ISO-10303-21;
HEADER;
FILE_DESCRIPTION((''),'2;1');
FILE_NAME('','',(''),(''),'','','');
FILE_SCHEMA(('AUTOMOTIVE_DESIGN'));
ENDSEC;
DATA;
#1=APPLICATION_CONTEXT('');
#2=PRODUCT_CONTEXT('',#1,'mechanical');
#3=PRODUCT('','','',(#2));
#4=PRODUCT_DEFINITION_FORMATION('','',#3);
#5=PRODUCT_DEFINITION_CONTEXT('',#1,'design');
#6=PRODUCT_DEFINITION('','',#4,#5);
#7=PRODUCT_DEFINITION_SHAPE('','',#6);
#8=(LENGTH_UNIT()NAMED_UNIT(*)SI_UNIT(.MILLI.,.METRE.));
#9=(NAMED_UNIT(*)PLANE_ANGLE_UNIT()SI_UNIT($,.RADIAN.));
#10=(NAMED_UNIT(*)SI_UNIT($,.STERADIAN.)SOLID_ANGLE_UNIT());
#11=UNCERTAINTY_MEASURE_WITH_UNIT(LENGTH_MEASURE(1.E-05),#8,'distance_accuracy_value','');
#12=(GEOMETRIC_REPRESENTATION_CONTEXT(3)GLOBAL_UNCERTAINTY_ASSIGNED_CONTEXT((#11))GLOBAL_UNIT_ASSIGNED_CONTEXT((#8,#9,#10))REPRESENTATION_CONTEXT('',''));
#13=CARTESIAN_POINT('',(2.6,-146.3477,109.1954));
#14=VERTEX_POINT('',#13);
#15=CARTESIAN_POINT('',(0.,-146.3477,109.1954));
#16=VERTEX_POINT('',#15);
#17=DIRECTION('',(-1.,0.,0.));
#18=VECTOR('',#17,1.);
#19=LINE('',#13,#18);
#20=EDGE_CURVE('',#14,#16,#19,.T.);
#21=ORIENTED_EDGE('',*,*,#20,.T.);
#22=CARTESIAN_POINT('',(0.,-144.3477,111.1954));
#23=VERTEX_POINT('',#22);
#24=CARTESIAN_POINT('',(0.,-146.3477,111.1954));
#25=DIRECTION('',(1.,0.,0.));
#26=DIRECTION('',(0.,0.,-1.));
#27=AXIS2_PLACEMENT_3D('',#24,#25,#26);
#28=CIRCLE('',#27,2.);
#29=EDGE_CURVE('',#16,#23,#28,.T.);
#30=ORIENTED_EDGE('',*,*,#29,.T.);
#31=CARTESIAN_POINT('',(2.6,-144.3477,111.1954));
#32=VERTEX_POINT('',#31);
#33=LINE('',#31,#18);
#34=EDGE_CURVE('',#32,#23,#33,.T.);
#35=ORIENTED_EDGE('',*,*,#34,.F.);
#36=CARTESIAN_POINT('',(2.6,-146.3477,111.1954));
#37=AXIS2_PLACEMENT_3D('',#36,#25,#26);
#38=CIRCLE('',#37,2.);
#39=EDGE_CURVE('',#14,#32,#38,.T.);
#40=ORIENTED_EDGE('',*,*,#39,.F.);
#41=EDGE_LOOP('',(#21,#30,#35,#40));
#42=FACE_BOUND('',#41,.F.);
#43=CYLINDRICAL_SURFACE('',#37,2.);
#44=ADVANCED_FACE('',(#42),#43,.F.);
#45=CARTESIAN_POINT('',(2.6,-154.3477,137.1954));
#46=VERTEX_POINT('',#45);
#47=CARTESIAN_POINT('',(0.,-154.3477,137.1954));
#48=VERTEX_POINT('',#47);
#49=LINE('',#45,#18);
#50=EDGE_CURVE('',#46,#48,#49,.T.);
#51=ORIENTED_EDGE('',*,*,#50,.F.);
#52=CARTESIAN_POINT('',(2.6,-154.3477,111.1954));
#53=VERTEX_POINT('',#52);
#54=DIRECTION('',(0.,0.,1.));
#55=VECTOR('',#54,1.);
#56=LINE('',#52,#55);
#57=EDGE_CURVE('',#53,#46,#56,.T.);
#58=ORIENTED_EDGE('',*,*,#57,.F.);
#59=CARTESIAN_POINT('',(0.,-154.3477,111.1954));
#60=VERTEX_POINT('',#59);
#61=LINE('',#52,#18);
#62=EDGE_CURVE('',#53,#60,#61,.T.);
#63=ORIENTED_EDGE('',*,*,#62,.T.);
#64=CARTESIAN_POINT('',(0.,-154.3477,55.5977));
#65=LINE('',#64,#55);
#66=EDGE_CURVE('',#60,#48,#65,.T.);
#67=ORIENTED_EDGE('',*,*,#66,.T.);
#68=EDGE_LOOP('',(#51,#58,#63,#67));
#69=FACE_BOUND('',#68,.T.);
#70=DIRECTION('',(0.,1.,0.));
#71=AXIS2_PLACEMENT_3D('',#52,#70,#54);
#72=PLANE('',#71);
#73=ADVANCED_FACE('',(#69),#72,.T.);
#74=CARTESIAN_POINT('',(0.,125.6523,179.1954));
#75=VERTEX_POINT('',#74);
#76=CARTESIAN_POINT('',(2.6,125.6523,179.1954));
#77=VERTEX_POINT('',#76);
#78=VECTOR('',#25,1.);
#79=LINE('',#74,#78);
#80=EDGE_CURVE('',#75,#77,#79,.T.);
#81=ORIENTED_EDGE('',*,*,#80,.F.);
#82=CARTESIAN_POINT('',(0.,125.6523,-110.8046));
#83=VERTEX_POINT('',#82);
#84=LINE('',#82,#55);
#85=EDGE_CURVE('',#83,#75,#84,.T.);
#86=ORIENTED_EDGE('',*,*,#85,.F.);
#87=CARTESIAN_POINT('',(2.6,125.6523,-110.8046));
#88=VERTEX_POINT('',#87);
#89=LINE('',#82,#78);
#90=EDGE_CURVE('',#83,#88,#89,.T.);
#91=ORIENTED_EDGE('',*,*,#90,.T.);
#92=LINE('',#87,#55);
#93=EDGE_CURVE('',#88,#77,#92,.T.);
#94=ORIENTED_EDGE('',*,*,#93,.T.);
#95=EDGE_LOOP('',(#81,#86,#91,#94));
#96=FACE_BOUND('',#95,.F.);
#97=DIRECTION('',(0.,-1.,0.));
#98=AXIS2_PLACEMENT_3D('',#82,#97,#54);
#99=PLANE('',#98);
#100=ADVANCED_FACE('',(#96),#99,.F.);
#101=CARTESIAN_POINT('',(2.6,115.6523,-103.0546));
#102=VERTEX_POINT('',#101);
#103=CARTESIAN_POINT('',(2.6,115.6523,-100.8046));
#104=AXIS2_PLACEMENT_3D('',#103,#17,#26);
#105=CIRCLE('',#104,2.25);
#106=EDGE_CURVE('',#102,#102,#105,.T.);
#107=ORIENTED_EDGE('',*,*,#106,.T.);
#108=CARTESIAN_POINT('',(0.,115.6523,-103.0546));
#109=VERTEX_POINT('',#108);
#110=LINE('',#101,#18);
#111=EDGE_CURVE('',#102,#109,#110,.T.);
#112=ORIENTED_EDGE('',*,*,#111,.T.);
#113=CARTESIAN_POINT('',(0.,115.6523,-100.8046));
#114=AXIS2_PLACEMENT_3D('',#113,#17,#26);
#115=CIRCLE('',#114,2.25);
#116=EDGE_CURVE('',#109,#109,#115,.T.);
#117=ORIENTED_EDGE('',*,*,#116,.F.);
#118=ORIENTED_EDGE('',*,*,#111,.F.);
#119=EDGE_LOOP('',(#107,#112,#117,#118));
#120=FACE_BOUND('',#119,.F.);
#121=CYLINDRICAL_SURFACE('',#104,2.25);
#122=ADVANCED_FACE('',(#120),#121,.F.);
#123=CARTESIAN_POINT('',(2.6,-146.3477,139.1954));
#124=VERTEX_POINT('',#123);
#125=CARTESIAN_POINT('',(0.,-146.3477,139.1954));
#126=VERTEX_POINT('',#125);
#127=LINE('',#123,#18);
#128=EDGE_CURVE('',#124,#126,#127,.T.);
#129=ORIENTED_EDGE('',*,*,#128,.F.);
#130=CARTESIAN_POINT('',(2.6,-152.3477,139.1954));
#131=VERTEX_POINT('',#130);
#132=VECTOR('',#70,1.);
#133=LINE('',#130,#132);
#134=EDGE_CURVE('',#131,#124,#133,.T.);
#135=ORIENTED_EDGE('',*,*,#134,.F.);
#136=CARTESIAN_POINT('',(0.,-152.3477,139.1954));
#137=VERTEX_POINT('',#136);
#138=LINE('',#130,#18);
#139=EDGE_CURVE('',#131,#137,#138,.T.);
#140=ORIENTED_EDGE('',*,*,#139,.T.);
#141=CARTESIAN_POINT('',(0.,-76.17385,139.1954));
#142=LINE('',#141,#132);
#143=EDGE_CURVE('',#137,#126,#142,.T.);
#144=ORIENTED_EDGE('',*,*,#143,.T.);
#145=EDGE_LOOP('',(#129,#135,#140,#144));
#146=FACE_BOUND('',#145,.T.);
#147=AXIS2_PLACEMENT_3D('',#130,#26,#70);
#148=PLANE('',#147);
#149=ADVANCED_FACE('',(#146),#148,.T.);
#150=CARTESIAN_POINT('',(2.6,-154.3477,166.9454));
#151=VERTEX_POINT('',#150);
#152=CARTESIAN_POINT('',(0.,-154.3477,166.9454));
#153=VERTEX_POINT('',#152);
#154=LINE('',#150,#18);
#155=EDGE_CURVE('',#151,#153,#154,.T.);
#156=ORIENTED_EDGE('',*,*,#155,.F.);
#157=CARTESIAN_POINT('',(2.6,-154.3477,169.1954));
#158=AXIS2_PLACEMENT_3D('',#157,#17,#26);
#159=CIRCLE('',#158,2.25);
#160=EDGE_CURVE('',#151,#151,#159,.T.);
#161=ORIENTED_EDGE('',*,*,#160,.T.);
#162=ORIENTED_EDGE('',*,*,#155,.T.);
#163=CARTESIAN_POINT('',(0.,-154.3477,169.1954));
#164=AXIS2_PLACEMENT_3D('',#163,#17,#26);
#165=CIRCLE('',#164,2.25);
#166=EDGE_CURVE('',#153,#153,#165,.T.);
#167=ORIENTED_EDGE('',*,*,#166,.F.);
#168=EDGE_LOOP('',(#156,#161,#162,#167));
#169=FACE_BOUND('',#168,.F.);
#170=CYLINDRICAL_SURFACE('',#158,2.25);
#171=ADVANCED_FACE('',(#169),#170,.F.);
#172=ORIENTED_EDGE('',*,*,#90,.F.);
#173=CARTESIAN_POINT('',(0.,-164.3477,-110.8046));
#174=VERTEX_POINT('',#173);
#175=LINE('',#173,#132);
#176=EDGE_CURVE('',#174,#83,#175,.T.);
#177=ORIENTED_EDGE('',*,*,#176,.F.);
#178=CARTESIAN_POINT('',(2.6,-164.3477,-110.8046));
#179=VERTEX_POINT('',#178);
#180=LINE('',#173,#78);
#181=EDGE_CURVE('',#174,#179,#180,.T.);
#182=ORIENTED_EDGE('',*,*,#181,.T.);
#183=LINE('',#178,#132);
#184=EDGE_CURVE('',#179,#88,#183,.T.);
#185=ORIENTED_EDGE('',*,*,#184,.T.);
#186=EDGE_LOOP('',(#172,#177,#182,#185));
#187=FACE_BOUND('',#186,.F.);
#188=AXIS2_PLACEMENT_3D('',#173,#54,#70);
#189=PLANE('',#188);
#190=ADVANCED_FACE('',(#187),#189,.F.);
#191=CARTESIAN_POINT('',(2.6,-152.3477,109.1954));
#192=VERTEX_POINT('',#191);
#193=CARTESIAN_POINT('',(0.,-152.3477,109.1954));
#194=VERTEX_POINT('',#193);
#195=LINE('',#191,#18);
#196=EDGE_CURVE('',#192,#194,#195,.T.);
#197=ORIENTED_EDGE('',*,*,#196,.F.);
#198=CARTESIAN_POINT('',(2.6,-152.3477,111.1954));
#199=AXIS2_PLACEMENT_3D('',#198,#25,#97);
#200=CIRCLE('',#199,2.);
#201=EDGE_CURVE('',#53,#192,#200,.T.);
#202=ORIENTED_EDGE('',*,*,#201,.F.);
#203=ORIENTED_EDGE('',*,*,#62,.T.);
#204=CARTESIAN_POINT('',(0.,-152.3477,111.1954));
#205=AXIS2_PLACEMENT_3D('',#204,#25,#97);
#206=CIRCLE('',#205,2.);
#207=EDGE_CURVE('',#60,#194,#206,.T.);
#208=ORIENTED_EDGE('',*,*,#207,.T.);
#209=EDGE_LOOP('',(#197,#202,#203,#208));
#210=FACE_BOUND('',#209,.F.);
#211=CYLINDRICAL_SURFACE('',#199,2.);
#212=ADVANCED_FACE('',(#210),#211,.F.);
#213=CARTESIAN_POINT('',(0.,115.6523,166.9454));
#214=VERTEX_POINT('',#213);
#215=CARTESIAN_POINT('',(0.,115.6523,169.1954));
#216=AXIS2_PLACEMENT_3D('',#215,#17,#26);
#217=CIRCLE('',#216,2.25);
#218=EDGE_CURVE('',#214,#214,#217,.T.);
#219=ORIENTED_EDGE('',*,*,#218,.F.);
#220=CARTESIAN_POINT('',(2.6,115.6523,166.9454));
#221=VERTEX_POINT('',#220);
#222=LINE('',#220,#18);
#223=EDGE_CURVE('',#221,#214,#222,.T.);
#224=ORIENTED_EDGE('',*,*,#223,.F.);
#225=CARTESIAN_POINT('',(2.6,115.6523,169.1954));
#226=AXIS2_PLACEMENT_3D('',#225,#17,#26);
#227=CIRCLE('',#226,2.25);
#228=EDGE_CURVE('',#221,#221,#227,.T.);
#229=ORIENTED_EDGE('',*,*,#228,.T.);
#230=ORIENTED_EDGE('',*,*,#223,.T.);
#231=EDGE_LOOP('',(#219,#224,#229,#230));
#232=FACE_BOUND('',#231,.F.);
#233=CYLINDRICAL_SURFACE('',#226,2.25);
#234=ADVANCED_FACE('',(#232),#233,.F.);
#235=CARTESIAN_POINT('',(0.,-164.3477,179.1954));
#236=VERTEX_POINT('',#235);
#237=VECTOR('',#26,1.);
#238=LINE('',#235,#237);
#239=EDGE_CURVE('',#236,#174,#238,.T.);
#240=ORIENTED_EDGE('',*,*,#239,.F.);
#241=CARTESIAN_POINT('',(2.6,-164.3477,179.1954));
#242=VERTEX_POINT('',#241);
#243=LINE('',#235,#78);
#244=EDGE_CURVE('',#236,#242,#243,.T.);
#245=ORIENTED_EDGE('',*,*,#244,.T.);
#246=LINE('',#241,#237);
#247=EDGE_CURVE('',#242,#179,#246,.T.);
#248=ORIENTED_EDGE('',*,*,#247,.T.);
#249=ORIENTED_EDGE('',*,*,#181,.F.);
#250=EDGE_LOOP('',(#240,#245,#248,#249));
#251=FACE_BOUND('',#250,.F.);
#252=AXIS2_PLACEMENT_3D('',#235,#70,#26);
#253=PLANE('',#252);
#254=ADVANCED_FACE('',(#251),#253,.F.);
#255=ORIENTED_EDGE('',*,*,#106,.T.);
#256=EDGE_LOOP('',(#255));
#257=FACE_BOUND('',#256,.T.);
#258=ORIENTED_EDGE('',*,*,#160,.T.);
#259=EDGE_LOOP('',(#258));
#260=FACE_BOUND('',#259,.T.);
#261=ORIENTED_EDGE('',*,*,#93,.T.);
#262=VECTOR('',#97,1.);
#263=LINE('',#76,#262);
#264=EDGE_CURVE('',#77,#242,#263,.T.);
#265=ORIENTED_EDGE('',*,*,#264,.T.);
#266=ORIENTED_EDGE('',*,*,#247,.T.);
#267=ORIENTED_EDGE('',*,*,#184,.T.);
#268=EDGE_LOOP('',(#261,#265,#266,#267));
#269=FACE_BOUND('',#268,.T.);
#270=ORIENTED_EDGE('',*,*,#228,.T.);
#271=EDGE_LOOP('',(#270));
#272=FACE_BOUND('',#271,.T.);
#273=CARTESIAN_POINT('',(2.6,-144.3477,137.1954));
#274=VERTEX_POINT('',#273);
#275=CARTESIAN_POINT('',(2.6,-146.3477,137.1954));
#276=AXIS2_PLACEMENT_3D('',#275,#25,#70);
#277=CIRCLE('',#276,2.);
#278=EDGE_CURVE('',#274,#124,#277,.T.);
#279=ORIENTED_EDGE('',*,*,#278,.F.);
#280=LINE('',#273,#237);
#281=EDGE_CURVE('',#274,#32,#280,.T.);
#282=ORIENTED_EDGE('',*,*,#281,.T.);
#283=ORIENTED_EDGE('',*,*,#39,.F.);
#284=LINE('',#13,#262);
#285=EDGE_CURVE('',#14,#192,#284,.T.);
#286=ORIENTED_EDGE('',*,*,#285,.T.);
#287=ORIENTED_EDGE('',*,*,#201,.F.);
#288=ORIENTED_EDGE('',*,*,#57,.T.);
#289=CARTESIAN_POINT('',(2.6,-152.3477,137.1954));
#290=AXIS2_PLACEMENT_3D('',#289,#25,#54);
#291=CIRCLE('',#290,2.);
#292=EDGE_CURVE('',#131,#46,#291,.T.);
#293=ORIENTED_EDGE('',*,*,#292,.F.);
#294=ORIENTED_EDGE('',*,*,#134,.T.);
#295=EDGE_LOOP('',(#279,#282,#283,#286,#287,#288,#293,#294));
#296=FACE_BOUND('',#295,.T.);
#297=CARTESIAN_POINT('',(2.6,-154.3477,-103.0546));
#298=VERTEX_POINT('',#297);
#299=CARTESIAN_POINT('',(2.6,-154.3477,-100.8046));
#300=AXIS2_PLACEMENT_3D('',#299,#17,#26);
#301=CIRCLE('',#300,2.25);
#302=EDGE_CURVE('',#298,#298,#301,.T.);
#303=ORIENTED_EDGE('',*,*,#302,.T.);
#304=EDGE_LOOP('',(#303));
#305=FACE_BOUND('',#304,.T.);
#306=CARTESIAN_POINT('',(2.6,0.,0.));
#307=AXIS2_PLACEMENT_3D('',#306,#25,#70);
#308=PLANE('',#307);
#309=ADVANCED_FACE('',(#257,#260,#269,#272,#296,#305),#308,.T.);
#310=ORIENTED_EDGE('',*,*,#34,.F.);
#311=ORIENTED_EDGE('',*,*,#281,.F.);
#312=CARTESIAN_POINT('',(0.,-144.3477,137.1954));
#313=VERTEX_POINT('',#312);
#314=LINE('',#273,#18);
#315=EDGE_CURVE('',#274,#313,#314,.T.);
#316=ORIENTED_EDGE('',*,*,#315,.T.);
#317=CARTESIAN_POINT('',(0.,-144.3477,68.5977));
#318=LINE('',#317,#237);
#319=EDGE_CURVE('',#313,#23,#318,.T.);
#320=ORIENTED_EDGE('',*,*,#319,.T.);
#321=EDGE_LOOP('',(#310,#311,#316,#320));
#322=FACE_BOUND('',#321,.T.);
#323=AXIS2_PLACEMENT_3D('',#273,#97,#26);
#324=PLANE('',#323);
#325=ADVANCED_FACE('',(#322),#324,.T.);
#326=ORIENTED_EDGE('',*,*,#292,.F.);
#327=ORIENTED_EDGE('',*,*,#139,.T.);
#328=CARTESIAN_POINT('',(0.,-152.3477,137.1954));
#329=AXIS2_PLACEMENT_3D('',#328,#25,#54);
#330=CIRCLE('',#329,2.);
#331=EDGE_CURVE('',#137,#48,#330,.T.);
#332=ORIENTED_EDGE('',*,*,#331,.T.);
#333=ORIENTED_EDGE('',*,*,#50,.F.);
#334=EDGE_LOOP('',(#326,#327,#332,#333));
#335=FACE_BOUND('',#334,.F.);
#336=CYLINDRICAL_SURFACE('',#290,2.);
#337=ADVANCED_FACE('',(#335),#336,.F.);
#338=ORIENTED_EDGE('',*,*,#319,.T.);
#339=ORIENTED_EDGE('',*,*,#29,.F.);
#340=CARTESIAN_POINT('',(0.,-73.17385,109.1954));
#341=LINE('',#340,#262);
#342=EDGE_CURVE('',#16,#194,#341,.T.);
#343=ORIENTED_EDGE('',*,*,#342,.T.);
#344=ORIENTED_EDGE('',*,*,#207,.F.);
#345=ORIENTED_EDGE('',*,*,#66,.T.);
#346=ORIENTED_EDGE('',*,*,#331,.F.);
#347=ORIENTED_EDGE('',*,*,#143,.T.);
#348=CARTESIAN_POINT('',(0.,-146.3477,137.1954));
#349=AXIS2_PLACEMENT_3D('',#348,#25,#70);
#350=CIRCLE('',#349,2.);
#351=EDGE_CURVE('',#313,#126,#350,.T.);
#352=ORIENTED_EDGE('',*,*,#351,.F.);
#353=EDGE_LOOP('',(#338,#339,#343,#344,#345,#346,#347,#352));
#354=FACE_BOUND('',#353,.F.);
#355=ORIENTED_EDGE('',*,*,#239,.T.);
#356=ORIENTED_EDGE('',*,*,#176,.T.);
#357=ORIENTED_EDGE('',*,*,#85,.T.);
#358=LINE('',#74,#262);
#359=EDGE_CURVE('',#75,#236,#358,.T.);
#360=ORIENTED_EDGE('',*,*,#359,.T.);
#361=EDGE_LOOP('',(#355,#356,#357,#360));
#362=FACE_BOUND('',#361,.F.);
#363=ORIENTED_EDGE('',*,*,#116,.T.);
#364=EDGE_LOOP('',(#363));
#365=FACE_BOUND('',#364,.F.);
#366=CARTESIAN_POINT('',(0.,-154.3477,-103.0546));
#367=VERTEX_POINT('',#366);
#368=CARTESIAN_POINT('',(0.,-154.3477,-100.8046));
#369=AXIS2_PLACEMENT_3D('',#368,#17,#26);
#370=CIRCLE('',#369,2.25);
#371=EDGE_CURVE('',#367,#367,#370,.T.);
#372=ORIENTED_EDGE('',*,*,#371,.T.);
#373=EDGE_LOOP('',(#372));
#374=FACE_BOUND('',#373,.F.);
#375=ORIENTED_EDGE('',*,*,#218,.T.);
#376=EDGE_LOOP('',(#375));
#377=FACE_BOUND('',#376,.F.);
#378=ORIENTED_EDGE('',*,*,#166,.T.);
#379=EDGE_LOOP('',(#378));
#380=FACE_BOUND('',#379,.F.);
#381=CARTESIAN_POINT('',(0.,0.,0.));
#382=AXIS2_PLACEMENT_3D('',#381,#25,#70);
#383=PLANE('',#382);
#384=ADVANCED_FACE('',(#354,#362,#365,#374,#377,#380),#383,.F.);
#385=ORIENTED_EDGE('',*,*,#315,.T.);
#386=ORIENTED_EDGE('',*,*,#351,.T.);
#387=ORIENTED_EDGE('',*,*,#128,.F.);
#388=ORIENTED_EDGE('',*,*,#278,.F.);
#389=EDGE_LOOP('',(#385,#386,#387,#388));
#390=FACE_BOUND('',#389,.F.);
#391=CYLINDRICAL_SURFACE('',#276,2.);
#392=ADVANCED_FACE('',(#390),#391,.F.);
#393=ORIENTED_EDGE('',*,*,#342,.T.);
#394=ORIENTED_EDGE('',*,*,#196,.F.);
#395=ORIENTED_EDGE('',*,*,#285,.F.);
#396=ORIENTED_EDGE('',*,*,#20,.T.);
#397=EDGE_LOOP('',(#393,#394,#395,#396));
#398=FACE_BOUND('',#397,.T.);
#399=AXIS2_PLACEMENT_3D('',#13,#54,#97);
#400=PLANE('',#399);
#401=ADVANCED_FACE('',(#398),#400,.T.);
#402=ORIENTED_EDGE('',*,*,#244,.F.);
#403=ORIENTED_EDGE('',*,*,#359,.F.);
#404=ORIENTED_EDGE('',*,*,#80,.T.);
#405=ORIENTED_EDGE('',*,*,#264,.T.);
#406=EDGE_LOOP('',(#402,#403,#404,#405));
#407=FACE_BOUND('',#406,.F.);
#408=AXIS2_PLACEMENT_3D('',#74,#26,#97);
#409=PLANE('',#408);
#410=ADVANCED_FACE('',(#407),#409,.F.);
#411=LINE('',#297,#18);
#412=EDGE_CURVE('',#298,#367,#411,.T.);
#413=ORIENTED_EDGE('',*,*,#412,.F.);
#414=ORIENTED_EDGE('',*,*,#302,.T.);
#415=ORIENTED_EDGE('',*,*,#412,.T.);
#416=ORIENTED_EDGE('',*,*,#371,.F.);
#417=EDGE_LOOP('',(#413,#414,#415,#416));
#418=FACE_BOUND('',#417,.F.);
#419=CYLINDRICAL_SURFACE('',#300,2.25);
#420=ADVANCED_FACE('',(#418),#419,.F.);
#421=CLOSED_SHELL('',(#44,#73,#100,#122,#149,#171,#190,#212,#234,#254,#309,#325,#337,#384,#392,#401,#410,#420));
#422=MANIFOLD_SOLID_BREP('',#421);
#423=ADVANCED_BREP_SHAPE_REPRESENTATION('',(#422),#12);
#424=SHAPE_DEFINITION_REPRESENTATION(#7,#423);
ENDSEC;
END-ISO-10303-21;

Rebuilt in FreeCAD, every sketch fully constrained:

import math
import FreeCAD as App
import Part
import Sketcher
from FreeCAD import Vector

doc = App.newDocument("Part")
body = doc.addObject("PartDesign::Body", "Body")

sketch1 = body.newObject("Sketcher::SketchObject", "Sketch")
sketch1.AttachmentSupport = (doc.getObject("YZ_Plane"), [""])
sketch1.MapMode = "FlatFace"
sketch1.addGeometry([
    Part.LineSegment(Vector(125.6523, -110.8046, 0), Vector(125.6523, 179.1954, 0)),
    Part.LineSegment(Vector(125.6523, 179.1954, 0), Vector(-164.3477, 179.1954, 0)),
    Part.LineSegment(Vector(-164.3477, 179.1954, 0), Vector(-164.3477, -110.8046, 0)),
    Part.LineSegment(Vector(-164.3477, -110.8046, 0), Vector(125.6523, -110.8046, 0)),
], False)
sketch1.addConstraint([
    Sketcher.Constraint("Coincident", 0, 2, 1, 1),
    Sketcher.Constraint("Coincident", 1, 2, 2, 1),
    Sketcher.Constraint("Coincident", 2, 2, 3, 1),
    Sketcher.Constraint("Coincident", 3, 2, 0, 1),
    Sketcher.Constraint("Vertical", 0),
    Sketcher.Constraint("Horizontal", 1),
    Sketcher.Constraint("Vertical", 2),
    Sketcher.Constraint("Horizontal", 3),
    Sketcher.Constraint("Equal", 3, 0),
    Sketcher.Constraint("DistanceX", 1, 2, 1, 1, 290.0),
    Sketcher.Constraint("DistanceX", -1, 1, 0, 2, 125.6523),
    Sketcher.Constraint("DistanceY", -1, 1, 0, 2, 179.1954),
])
pad1 = body.newObject("PartDesign::Pad", "Pad")
pad1.Profile = sketch1
pad1.Length = 2.6

sketch2 = body.newObject("Sketcher::SketchObject", "Sketch001")
sketch2.AttachmentSupport = (doc.getObject("YZ_Plane"), [""])
sketch2.MapMode = "FlatFace"
sketch2.AttachmentOffset = App.Placement(Vector(0, 0, 2.6), App.Rotation())
sketch2.addGeometry([
    Part.Circle(Vector(115.6523, 169.1954, 0), Vector(0, 0, 1), 2.25),
    Part.Circle(Vector(115.6523, -100.8046, 0), Vector(0, 0, 1), 2.25),
    Part.Circle(Vector(-154.3477, 169.1954, 0), Vector(0, 0, 1), 2.25),
    Part.Circle(Vector(-154.3477, -100.8046, 0), Vector(0, 0, 1), 2.25),
], False)
sketch2.addConstraint([
    Sketcher.Constraint("Equal", 0, 1),
    Sketcher.Constraint("Equal", 1, 2),
    Sketcher.Constraint("Equal", 2, 3),
    Sketcher.Constraint("Horizontal", 0, 3, 2, 3),
    Sketcher.Constraint("Horizontal", 1, 3, 3, 3),
    Sketcher.Constraint("Vertical", 0, 3, 1, 3),
    Sketcher.Constraint("Vertical", 2, 3, 3, 3),
    Sketcher.Constraint("Diameter", 0, 4.5),
    Sketcher.Constraint("DistanceY", 1, 3, 0, 3, 270.0),
    Sketcher.Constraint("DistanceX", 2, 3, 0, 3, 270.0),
    Sketcher.Constraint("DistanceX", -1, 1, 0, 3, 115.6523),
    Sketcher.Constraint("DistanceY", -1, 1, 0, 3, 169.1954),
])
doc.recompute()
hole = body.newObject("PartDesign::Hole", "Hole")
hole.Profile = sketch2
hole.ThreadType = "None"
hole.Diameter = 4.5
hole.DepthType = "Dimension"
hole.Depth = 10
hole.DrillPoint = "Angled"
hole.DrillPointAngle = 118

sketch3 = body.newObject("Sketcher::SketchObject", "Sketch002")
sketch3.AttachmentSupport = (doc.getObject("YZ_Plane"), [""])
sketch3.MapMode = "FlatFace"
sketch3.AttachmentOffset = App.Placement(Vector(0, 0, 2.6), App.Rotation())
sketch3.addGeometry([
    Part.LineSegment(Vector(-154.3477, 137.1954, 0), Vector(-154.3477, 111.1954, 0)),
    Part.ArcOfCircle(Part.Circle(Vector(-152.3477, 111.1954, 0), Vector(0, 0, 1), 2), math.radians(180), math.radians(270)),
    Part.LineSegment(Vector(-152.3477, 109.1954, 0), Vector(-146.3477, 109.1954, 0)),
    Part.ArcOfCircle(Part.Circle(Vector(-146.3477, 111.1954, 0), Vector(0, 0, 1), 2), math.radians(-90), math.radians(0)),
    Part.LineSegment(Vector(-144.3477, 111.1954, 0), Vector(-144.3477, 137.1954, 0)),
    Part.ArcOfCircle(Part.Circle(Vector(-146.3477, 137.1954, 0), Vector(0, 0, 1), 2), math.radians(0), math.radians(90)),
    Part.LineSegment(Vector(-146.3477, 139.1954, 0), Vector(-152.3477, 139.1954, 0)),
    Part.ArcOfCircle(Part.Circle(Vector(-152.3477, 137.1954, 0), Vector(0, 0, 1), 2), math.radians(90), math.radians(180)),
], False)
sketch3.addConstraint([
    Sketcher.Constraint("Tangent", 0, 2, 1, 1),
    Sketcher.Constraint("Tangent", 1, 2, 2, 1),
    Sketcher.Constraint("Tangent", 2, 2, 3, 1),
    Sketcher.Constraint("Tangent", 3, 2, 4, 1),
    Sketcher.Constraint("Tangent", 4, 2, 5, 1),
    Sketcher.Constraint("Tangent", 5, 2, 6, 1),
    Sketcher.Constraint("Tangent", 6, 2, 7, 1),
    Sketcher.Constraint("Tangent", 7, 2, 0, 1),
    Sketcher.Constraint("Vertical", 0),
    Sketcher.Constraint("Horizontal", 2),
    Sketcher.Constraint("Vertical", 4),
    Sketcher.Constraint("Horizontal", 6),
    Sketcher.Constraint("Equal", 1, 3),
    Sketcher.Constraint("Equal", 3, 5),
    Sketcher.Constraint("Equal", 5, 7),
    Sketcher.Constraint("Radius", 1, 2.0),
    Sketcher.Constraint("DistanceX", 2, 1, 2, 2, 6.0),
    Sketcher.Constraint("DistanceY", 0, 2, 0, 1, 26.0),
    Sketcher.Constraint("DistanceX", 1, 3, -1, 1, 152.3477),
    Sketcher.Constraint("DistanceY", -1, 1, 1, 3, 111.1954),
])
pocket1 = body.newObject("PartDesign::Pocket", "Pocket")
pocket1.Profile = sketch3
pocket1.Type = "ThroughAll"

doc.recompute()
